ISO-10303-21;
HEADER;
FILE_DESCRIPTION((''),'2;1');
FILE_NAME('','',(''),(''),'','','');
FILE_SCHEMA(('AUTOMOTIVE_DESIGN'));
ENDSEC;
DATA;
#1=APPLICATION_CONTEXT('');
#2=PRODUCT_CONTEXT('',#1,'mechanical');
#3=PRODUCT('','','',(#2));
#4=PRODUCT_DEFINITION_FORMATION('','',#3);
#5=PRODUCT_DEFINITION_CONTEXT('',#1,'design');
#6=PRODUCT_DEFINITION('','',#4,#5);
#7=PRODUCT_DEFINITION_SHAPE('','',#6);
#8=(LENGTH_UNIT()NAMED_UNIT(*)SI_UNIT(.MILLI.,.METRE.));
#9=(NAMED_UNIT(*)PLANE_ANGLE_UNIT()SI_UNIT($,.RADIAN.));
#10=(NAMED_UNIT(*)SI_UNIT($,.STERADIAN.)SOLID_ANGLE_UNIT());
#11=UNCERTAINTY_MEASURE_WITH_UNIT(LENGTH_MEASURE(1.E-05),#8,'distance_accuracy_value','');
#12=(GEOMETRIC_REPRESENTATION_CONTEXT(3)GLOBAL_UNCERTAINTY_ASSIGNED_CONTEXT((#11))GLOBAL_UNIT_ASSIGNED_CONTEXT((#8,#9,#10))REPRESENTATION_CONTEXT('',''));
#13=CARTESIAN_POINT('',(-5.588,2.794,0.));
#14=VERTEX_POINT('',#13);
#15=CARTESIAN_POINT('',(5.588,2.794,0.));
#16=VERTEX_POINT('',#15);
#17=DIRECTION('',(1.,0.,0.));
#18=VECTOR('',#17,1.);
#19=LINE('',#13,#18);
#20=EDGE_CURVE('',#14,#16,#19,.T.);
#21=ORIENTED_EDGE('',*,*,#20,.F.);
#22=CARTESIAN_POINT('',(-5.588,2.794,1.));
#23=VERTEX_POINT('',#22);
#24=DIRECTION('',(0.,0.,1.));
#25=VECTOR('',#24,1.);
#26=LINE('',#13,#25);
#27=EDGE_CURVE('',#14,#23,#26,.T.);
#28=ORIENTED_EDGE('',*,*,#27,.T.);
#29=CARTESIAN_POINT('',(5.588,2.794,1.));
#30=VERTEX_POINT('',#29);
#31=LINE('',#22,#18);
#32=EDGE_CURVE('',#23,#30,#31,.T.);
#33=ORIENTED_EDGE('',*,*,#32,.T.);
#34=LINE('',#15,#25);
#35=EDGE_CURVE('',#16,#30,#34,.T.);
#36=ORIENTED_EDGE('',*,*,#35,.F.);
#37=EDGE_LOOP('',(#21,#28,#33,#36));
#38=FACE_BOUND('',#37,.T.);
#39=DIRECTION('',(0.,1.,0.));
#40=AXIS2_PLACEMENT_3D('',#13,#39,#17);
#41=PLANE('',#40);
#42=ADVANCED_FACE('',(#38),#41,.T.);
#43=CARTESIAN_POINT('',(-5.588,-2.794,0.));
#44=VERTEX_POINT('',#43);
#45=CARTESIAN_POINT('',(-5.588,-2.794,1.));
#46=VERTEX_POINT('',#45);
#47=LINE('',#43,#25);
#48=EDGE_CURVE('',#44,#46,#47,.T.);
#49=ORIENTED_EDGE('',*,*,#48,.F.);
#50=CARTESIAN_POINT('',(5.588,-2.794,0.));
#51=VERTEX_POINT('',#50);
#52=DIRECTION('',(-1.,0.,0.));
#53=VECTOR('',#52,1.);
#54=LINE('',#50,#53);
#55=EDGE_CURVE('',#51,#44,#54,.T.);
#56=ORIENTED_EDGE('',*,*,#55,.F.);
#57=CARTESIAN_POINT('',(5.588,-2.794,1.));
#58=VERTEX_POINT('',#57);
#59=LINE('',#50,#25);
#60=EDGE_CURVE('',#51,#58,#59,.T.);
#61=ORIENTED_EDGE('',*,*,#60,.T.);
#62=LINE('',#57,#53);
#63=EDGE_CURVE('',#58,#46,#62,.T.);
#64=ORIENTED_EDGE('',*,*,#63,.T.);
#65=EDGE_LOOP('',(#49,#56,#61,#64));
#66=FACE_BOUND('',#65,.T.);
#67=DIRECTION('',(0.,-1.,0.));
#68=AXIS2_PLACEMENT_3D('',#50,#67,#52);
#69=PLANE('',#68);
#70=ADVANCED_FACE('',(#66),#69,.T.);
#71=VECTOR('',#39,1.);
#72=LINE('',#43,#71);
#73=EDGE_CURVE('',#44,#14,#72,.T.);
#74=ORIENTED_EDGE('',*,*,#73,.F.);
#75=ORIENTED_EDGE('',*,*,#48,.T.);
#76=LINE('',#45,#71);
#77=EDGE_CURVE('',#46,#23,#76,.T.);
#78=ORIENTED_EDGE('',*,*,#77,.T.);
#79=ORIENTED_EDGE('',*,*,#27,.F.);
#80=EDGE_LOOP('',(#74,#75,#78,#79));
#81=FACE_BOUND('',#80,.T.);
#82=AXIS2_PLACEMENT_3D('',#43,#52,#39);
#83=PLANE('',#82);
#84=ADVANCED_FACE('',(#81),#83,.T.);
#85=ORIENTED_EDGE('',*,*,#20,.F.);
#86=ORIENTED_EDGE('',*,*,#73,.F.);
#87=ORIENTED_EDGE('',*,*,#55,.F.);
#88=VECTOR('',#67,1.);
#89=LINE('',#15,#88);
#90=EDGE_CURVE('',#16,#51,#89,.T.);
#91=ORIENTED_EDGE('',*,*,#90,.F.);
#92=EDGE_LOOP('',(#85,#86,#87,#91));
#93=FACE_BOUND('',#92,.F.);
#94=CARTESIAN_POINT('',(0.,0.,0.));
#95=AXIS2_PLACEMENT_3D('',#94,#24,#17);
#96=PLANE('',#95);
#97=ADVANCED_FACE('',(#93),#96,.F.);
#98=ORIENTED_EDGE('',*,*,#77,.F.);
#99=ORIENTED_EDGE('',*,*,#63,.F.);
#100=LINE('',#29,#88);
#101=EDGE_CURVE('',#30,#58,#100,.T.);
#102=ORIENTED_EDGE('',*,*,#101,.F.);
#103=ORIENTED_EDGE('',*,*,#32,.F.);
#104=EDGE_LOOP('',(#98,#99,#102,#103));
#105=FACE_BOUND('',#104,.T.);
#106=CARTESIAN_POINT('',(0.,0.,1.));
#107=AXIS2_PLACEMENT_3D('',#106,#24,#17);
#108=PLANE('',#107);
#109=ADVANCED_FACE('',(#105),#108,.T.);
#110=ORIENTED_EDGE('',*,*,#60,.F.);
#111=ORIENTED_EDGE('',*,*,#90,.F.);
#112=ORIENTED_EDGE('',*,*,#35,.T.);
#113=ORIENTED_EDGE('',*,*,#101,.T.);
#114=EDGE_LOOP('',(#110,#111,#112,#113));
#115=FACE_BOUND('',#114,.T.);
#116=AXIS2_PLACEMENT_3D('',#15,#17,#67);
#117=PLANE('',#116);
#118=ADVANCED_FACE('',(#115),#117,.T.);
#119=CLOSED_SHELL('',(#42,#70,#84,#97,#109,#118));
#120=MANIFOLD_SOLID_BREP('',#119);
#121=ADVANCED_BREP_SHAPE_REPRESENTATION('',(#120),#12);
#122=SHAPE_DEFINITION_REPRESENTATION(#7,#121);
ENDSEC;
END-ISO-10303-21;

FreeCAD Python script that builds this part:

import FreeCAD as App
import Part
import Sketcher
Q = App.Units.Quantity

doc = App.newDocument("Part")
body = doc.addObject("PartDesign::Body", "Body")

# Sketch on XY plane
sketch1 = doc.addObject("Sketcher::SketchObject", "Sketch")
body.addObject(sketch1)
sketch1.AttachmentSupport = (doc.XY_Plane, [""])
sketch1.MapMode = "FlatFace"
sketch1.addGeometry([
    Part.LineSegment(App.Vector(6, 3, 0), App.Vector(-6, 3, 0)),
    Part.LineSegment(App.Vector(-6, 3, 0), App.Vector(-6, -3, 0)),
    Part.LineSegment(App.Vector(-6, -3, 0), App.Vector(6, -3, 0)),
    Part.LineSegment(App.Vector(6, -3, 0), App.Vector(6, 3, 0)),
], False)
sketch1.addConstraint([
    Sketcher.Constraint("Coincident", 0, 2, 1, 1),
    Sketcher.Constraint("Coincident", 1, 2, 2, 1),
    Sketcher.Constraint("Coincident", 2, 2, 3, 1),
    Sketcher.Constraint("Coincident", 3, 2, 0, 1),
    Sketcher.Constraint("Horizontal", 0),
    Sketcher.Constraint("Vertical", 1),
    Sketcher.Constraint("Horizontal", 2),
    Sketcher.Constraint("Vertical", 3),
    Sketcher.Constraint("Symmetric", 0, 2, 2, 2, -1, 1),
    Sketcher.Constraint("DistanceX", 0, 2, 0, 1, Q("0.44 in")),
    Sketcher.Constraint("DistanceY", 1, 2, 1, 1, Q("0.22 in")),
])
pad1 = doc.addObject("PartDesign::Pad", "Pad")
body.addObject(pad1)
pad1.Profile = sketch1
pad1.Length = 1

doc.recompute()
